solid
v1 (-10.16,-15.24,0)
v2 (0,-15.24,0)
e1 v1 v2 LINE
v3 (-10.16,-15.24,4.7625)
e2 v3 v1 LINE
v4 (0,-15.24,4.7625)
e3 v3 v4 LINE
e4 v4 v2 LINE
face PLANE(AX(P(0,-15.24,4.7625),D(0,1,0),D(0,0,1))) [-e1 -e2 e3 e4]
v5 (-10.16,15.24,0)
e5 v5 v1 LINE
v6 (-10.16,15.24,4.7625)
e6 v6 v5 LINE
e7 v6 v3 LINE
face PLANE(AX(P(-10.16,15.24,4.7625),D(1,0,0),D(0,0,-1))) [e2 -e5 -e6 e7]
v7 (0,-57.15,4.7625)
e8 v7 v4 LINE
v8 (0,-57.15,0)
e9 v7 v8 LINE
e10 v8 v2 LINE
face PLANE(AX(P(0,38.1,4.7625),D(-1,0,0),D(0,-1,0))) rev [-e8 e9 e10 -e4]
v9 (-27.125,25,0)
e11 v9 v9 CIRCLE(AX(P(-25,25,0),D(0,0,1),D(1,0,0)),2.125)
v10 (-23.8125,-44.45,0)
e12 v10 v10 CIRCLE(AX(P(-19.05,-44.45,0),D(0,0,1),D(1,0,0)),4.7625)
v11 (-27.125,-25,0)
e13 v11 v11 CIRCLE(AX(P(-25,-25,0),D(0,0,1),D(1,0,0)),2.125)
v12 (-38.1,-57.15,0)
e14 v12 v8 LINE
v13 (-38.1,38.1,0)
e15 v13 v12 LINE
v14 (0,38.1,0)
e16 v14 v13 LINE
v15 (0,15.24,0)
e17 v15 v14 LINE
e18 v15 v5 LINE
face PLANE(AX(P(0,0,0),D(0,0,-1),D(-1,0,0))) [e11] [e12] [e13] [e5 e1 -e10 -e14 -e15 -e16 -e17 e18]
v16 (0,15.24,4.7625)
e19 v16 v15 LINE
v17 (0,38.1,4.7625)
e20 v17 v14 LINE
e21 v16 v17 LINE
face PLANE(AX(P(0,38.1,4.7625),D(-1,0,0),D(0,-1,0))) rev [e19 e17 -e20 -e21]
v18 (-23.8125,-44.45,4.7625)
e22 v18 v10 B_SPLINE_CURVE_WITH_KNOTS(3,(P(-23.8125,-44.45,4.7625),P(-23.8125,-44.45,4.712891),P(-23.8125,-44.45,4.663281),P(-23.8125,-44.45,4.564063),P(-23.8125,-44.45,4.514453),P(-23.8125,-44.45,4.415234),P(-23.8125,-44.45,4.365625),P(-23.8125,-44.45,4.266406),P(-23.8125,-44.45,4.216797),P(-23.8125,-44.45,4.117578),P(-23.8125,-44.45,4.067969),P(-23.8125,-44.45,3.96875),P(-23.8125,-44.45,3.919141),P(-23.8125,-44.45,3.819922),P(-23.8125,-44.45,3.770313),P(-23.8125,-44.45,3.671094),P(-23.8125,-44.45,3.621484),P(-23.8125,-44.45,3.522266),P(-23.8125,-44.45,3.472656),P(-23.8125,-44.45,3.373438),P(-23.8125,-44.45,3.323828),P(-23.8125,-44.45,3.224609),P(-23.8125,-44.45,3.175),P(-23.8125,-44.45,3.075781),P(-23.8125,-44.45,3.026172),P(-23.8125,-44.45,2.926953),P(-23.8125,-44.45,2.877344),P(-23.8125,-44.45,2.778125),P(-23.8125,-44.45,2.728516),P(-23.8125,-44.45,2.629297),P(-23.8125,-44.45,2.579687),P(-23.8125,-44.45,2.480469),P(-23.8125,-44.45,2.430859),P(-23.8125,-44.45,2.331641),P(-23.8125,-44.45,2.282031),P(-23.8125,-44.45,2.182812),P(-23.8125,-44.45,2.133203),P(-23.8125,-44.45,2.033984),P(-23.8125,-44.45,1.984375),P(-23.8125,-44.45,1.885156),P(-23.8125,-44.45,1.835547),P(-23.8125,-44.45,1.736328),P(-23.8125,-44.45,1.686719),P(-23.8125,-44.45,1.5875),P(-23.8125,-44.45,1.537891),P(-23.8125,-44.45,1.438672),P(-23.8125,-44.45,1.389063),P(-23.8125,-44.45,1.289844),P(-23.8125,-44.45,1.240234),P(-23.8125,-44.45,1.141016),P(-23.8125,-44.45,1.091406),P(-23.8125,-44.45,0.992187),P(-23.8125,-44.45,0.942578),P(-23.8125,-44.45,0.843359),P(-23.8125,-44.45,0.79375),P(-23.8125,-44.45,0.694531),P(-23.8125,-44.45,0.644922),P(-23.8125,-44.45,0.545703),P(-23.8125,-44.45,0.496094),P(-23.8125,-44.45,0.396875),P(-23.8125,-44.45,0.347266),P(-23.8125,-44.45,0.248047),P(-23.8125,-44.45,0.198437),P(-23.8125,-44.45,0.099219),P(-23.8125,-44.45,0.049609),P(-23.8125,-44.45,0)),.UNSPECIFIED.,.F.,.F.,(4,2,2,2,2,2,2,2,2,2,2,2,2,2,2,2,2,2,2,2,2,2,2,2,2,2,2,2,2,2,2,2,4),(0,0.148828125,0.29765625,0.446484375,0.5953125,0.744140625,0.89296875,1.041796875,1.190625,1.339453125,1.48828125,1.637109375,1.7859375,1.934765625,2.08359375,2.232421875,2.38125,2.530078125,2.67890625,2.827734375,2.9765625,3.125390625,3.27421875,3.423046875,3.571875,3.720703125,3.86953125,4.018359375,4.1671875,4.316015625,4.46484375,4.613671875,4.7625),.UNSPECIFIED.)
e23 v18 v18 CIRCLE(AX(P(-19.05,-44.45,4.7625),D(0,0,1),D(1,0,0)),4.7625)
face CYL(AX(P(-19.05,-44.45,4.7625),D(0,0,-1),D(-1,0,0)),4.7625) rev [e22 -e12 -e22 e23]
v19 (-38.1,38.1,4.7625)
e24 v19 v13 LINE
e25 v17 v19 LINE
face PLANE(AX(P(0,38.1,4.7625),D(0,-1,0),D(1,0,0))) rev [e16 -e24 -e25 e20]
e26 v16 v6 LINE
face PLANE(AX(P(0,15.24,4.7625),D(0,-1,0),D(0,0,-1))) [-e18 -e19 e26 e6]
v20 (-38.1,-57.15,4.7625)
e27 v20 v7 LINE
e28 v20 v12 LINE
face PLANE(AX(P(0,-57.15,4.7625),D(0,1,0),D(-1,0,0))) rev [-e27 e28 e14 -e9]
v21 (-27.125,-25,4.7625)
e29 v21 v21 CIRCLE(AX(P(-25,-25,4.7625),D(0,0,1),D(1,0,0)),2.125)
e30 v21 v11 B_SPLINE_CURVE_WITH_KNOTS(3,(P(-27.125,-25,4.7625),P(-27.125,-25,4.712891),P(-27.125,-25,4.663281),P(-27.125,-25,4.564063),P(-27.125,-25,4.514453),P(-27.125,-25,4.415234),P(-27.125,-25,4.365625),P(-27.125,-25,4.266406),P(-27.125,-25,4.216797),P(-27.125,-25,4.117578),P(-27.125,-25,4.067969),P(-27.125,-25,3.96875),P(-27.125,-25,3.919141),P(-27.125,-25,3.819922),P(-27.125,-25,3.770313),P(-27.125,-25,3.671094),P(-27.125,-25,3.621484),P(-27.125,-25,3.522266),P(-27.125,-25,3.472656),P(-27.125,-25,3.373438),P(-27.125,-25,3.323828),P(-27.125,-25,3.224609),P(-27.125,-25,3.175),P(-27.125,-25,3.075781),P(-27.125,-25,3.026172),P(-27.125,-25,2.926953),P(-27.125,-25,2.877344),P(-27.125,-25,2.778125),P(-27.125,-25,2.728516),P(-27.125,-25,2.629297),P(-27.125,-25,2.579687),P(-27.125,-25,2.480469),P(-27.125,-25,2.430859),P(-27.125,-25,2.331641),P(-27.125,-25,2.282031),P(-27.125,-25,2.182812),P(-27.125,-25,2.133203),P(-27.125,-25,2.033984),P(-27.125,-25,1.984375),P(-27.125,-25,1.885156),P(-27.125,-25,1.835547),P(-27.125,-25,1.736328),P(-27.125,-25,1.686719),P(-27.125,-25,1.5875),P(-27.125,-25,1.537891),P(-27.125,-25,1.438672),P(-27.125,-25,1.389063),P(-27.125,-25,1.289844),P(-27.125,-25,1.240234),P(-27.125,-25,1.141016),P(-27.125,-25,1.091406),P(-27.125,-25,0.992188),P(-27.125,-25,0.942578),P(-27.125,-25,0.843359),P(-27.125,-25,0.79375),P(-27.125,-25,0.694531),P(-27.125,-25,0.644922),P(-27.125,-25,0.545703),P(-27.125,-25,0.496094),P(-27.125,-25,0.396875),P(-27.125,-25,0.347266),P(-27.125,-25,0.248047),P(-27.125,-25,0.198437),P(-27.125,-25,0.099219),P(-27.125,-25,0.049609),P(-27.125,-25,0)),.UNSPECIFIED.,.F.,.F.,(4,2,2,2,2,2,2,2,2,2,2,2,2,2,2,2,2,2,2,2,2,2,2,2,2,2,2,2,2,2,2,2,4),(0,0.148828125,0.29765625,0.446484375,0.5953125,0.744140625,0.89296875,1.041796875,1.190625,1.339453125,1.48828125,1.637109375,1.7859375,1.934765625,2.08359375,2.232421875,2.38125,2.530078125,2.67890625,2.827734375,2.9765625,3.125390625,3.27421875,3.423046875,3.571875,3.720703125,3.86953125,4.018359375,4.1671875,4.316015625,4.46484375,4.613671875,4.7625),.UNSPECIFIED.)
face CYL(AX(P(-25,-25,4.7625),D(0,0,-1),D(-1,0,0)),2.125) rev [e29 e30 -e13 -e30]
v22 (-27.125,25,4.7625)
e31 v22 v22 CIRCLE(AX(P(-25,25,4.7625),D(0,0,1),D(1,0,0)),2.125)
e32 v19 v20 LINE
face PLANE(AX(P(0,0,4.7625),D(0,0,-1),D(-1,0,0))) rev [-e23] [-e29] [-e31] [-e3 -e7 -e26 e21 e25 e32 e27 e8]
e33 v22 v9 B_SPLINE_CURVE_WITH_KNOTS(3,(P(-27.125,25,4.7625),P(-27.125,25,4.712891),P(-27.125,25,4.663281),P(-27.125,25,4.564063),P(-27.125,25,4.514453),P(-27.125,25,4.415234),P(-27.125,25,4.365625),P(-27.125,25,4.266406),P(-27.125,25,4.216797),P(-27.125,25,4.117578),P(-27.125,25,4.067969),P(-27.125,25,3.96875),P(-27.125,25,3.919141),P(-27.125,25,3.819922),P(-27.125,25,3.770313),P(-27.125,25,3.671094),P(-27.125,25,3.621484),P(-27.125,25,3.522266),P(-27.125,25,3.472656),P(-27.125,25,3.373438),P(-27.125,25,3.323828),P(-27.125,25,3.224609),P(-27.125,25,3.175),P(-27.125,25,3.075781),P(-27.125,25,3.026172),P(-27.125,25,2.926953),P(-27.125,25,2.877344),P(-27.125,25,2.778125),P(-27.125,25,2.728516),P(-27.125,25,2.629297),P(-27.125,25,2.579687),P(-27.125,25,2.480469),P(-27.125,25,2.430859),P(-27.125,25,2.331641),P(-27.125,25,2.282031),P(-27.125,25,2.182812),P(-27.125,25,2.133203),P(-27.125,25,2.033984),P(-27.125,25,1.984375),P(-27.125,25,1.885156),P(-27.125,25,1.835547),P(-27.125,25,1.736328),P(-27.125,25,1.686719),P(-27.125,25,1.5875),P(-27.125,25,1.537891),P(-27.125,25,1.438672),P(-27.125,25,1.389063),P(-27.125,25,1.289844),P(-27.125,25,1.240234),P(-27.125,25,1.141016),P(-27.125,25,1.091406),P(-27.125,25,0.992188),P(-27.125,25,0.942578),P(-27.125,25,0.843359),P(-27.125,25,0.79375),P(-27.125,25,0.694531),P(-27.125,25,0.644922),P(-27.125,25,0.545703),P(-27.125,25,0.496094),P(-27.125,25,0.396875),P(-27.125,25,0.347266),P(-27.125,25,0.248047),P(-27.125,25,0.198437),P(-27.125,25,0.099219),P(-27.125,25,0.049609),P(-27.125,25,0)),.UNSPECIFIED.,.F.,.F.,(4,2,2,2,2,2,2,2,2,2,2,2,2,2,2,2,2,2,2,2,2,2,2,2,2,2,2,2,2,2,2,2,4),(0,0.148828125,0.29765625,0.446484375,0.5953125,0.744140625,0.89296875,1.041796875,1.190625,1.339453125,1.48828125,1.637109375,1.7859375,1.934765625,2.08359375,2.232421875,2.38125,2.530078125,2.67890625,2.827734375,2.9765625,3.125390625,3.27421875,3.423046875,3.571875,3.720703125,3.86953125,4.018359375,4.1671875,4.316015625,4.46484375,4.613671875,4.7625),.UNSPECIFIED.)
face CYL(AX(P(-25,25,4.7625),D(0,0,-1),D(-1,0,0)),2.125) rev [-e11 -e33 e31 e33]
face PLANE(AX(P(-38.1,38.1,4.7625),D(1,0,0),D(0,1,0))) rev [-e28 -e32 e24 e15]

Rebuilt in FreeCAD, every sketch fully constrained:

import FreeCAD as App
import Part
import Sketcher
Q = App.Units.Quantity

doc = App.newDocument("Part")
body = doc.addObject("PartDesign::Body", "Body")

sketch1 = doc.addObject("Sketcher::SketchObject", "Sketch")
body.addObject(sketch1)
sketch1.AttachmentSupport = (doc.XY_Plane, [""])
sketch1.MapMode = "FlatFace"
sketch1.addGeometry([
    Part.LineSegment(App.Vector(-38.1, 38.1, 0), App.Vector(-38.1, -57.15, 0)),
    Part.LineSegment(App.Vector(-38.1, -57.15, 0), App.Vector(0, -57.15, 0)),
    Part.LineSegment(App.Vector(0, -57.15, 0), App.Vector(0, 38.1, 0)),
    Part.LineSegment(App.Vector(0, 38.1, 0), App.Vector(-38.1, 38.1, 0)),
], False)
sketch1.addConstraint([
    Sketcher.Constraint("Coincident", 0, 2, 1, 1),
    Sketcher.Constraint("Coincident", 1, 2, 2, 1),
    Sketcher.Constraint("Coincident", 2, 2, 3, 1),
    Sketcher.Constraint("Coincident", 3, 2, 0, 1),
    Sketcher.Constraint("Vertical", 0),
    Sketcher.Constraint("Horizontal", 1),
    Sketcher.Constraint("Vertical", 2),
    Sketcher.Constraint("Horizontal", 3),
    Sketcher.Constraint("PointOnObject", 1, 2, -2),
    Sketcher.Constraint("DistanceX", 1, 1, 1, 2, Q("1.5 in")),
    Sketcher.Constraint("DistanceY", 0, 2, 0, 1, Q("3.75 in")),
    Sketcher.Constraint("DistanceY", -1, 1, 2, 2, Q("1.5 in")),
])
pad1 = doc.addObject("PartDesign::Pad", "Pad")
body.addObject(pad1)
pad1.Profile = sketch1
pad1.Length = Q("0.1875 in")

sketch2 = doc.addObject("Sketcher::SketchObject", "Sketch001")
body.addObject(sketch2)
sketch2.AttachmentSupport = (doc.XY_Plane, [""])
sketch2.MapMode = "FlatFace"
sketch2.addGeometry([
    Part.Circle(App.Vector(-25, 25, 0), App.Vector(0, 0, 1), 2.125),
    Part.Circle(App.Vector(25, 25, 0), App.Vector(0, 0, 1), 2.125),
    Part.Circle(App.Vector(25, -25, 0), App.Vector(0, 0, 1), 2.125),
    Part.Circle(App.Vector(-25, -25, 0), App.Vector(0, 0, 1), 2.125),
    Part.Circle(App.Vector(-19.05, -44.45, 0), App.Vector(0, 0, 1), 4.7625),
    Part.LineSegment(App.Vector(-10.16, 15.24, 0), App.Vector(-10.16, -15.24, 0)),
    Part.LineSegment(App.Vector(-10.16, -15.24, 0), App.Vector(0, -15.24, 0)),
    Part.LineSegment(App.Vector(0, -15.24, 0), App.Vector(0, 15.24, 0)),
    Part.LineSegment(App.Vector(0, 15.24, 0), App.Vector(-10.16, 15.24, 0)),
], False)
sketch2.addConstraint([
    Sketcher.Constraint("Coincident", 5, 2, 6, 1),
    Sketcher.Constraint("Coincident", 6, 2, 7, 1),
    Sketcher.Constraint("Coincident", 7, 2, 8, 1),
    Sketcher.Constraint("Coincident", 8, 2, 5, 1),
    Sketcher.Constraint("Vertical", 5),
    Sketcher.Constraint("Horizontal", 6),
    Sketcher.Constraint("Vertical", 7),
    Sketcher.Constraint("Horizontal", 8),
    Sketcher.Constraint("Equal", 0, 1),
    Sketcher.Constraint("Equal", 1, 2),
    Sketcher.Constraint("Equal", 2, 3),
    Sketcher.Constraint("Symmetric", 0, 3, 2, 3, -1, 1),
    Sketcher.Constraint("Symmetric", 1, 3, 3, 3, -1, 1),
    Sketcher.Constraint("Symmetric", 6, 2, 7, 2, -1, 1),
    Sketcher.Constraint("Symmetric", 0, 3, 1, 3, -2),
    Sketcher.Constraint("Diameter", 4, Q("0.375 in")),
    Sketcher.Constraint("DistanceX", 6, 1, 6, 2, Q("0.4 in")),
    Sketcher.Constraint("DistanceY", 5, 2, 5, 1, Q("1.2 in")),
    Sketcher.Constraint("Diameter", 0, 4.25),
    Sketcher.Constraint("DistanceX", 4, 3, -1, 1, Q("0.75 in")),
    Sketcher.Constraint("DistanceY", 4, 3, -1, 1, Q("1.75 in")),
    Sketcher.Constraint("DistanceX", 0, 3, -1, 1, 25.0),
    Sketcher.Constraint("DistanceY", -1, 1, 0, 3, 25.0),
])
pocket1 = doc.addObject("PartDesign::Pocket", "Pocket")
body.addObject(pocket1)
pocket1.Profile = sketch2
pocket1.Type = "ThroughAll"
pocket1.Reversed = True

doc.recompute()
